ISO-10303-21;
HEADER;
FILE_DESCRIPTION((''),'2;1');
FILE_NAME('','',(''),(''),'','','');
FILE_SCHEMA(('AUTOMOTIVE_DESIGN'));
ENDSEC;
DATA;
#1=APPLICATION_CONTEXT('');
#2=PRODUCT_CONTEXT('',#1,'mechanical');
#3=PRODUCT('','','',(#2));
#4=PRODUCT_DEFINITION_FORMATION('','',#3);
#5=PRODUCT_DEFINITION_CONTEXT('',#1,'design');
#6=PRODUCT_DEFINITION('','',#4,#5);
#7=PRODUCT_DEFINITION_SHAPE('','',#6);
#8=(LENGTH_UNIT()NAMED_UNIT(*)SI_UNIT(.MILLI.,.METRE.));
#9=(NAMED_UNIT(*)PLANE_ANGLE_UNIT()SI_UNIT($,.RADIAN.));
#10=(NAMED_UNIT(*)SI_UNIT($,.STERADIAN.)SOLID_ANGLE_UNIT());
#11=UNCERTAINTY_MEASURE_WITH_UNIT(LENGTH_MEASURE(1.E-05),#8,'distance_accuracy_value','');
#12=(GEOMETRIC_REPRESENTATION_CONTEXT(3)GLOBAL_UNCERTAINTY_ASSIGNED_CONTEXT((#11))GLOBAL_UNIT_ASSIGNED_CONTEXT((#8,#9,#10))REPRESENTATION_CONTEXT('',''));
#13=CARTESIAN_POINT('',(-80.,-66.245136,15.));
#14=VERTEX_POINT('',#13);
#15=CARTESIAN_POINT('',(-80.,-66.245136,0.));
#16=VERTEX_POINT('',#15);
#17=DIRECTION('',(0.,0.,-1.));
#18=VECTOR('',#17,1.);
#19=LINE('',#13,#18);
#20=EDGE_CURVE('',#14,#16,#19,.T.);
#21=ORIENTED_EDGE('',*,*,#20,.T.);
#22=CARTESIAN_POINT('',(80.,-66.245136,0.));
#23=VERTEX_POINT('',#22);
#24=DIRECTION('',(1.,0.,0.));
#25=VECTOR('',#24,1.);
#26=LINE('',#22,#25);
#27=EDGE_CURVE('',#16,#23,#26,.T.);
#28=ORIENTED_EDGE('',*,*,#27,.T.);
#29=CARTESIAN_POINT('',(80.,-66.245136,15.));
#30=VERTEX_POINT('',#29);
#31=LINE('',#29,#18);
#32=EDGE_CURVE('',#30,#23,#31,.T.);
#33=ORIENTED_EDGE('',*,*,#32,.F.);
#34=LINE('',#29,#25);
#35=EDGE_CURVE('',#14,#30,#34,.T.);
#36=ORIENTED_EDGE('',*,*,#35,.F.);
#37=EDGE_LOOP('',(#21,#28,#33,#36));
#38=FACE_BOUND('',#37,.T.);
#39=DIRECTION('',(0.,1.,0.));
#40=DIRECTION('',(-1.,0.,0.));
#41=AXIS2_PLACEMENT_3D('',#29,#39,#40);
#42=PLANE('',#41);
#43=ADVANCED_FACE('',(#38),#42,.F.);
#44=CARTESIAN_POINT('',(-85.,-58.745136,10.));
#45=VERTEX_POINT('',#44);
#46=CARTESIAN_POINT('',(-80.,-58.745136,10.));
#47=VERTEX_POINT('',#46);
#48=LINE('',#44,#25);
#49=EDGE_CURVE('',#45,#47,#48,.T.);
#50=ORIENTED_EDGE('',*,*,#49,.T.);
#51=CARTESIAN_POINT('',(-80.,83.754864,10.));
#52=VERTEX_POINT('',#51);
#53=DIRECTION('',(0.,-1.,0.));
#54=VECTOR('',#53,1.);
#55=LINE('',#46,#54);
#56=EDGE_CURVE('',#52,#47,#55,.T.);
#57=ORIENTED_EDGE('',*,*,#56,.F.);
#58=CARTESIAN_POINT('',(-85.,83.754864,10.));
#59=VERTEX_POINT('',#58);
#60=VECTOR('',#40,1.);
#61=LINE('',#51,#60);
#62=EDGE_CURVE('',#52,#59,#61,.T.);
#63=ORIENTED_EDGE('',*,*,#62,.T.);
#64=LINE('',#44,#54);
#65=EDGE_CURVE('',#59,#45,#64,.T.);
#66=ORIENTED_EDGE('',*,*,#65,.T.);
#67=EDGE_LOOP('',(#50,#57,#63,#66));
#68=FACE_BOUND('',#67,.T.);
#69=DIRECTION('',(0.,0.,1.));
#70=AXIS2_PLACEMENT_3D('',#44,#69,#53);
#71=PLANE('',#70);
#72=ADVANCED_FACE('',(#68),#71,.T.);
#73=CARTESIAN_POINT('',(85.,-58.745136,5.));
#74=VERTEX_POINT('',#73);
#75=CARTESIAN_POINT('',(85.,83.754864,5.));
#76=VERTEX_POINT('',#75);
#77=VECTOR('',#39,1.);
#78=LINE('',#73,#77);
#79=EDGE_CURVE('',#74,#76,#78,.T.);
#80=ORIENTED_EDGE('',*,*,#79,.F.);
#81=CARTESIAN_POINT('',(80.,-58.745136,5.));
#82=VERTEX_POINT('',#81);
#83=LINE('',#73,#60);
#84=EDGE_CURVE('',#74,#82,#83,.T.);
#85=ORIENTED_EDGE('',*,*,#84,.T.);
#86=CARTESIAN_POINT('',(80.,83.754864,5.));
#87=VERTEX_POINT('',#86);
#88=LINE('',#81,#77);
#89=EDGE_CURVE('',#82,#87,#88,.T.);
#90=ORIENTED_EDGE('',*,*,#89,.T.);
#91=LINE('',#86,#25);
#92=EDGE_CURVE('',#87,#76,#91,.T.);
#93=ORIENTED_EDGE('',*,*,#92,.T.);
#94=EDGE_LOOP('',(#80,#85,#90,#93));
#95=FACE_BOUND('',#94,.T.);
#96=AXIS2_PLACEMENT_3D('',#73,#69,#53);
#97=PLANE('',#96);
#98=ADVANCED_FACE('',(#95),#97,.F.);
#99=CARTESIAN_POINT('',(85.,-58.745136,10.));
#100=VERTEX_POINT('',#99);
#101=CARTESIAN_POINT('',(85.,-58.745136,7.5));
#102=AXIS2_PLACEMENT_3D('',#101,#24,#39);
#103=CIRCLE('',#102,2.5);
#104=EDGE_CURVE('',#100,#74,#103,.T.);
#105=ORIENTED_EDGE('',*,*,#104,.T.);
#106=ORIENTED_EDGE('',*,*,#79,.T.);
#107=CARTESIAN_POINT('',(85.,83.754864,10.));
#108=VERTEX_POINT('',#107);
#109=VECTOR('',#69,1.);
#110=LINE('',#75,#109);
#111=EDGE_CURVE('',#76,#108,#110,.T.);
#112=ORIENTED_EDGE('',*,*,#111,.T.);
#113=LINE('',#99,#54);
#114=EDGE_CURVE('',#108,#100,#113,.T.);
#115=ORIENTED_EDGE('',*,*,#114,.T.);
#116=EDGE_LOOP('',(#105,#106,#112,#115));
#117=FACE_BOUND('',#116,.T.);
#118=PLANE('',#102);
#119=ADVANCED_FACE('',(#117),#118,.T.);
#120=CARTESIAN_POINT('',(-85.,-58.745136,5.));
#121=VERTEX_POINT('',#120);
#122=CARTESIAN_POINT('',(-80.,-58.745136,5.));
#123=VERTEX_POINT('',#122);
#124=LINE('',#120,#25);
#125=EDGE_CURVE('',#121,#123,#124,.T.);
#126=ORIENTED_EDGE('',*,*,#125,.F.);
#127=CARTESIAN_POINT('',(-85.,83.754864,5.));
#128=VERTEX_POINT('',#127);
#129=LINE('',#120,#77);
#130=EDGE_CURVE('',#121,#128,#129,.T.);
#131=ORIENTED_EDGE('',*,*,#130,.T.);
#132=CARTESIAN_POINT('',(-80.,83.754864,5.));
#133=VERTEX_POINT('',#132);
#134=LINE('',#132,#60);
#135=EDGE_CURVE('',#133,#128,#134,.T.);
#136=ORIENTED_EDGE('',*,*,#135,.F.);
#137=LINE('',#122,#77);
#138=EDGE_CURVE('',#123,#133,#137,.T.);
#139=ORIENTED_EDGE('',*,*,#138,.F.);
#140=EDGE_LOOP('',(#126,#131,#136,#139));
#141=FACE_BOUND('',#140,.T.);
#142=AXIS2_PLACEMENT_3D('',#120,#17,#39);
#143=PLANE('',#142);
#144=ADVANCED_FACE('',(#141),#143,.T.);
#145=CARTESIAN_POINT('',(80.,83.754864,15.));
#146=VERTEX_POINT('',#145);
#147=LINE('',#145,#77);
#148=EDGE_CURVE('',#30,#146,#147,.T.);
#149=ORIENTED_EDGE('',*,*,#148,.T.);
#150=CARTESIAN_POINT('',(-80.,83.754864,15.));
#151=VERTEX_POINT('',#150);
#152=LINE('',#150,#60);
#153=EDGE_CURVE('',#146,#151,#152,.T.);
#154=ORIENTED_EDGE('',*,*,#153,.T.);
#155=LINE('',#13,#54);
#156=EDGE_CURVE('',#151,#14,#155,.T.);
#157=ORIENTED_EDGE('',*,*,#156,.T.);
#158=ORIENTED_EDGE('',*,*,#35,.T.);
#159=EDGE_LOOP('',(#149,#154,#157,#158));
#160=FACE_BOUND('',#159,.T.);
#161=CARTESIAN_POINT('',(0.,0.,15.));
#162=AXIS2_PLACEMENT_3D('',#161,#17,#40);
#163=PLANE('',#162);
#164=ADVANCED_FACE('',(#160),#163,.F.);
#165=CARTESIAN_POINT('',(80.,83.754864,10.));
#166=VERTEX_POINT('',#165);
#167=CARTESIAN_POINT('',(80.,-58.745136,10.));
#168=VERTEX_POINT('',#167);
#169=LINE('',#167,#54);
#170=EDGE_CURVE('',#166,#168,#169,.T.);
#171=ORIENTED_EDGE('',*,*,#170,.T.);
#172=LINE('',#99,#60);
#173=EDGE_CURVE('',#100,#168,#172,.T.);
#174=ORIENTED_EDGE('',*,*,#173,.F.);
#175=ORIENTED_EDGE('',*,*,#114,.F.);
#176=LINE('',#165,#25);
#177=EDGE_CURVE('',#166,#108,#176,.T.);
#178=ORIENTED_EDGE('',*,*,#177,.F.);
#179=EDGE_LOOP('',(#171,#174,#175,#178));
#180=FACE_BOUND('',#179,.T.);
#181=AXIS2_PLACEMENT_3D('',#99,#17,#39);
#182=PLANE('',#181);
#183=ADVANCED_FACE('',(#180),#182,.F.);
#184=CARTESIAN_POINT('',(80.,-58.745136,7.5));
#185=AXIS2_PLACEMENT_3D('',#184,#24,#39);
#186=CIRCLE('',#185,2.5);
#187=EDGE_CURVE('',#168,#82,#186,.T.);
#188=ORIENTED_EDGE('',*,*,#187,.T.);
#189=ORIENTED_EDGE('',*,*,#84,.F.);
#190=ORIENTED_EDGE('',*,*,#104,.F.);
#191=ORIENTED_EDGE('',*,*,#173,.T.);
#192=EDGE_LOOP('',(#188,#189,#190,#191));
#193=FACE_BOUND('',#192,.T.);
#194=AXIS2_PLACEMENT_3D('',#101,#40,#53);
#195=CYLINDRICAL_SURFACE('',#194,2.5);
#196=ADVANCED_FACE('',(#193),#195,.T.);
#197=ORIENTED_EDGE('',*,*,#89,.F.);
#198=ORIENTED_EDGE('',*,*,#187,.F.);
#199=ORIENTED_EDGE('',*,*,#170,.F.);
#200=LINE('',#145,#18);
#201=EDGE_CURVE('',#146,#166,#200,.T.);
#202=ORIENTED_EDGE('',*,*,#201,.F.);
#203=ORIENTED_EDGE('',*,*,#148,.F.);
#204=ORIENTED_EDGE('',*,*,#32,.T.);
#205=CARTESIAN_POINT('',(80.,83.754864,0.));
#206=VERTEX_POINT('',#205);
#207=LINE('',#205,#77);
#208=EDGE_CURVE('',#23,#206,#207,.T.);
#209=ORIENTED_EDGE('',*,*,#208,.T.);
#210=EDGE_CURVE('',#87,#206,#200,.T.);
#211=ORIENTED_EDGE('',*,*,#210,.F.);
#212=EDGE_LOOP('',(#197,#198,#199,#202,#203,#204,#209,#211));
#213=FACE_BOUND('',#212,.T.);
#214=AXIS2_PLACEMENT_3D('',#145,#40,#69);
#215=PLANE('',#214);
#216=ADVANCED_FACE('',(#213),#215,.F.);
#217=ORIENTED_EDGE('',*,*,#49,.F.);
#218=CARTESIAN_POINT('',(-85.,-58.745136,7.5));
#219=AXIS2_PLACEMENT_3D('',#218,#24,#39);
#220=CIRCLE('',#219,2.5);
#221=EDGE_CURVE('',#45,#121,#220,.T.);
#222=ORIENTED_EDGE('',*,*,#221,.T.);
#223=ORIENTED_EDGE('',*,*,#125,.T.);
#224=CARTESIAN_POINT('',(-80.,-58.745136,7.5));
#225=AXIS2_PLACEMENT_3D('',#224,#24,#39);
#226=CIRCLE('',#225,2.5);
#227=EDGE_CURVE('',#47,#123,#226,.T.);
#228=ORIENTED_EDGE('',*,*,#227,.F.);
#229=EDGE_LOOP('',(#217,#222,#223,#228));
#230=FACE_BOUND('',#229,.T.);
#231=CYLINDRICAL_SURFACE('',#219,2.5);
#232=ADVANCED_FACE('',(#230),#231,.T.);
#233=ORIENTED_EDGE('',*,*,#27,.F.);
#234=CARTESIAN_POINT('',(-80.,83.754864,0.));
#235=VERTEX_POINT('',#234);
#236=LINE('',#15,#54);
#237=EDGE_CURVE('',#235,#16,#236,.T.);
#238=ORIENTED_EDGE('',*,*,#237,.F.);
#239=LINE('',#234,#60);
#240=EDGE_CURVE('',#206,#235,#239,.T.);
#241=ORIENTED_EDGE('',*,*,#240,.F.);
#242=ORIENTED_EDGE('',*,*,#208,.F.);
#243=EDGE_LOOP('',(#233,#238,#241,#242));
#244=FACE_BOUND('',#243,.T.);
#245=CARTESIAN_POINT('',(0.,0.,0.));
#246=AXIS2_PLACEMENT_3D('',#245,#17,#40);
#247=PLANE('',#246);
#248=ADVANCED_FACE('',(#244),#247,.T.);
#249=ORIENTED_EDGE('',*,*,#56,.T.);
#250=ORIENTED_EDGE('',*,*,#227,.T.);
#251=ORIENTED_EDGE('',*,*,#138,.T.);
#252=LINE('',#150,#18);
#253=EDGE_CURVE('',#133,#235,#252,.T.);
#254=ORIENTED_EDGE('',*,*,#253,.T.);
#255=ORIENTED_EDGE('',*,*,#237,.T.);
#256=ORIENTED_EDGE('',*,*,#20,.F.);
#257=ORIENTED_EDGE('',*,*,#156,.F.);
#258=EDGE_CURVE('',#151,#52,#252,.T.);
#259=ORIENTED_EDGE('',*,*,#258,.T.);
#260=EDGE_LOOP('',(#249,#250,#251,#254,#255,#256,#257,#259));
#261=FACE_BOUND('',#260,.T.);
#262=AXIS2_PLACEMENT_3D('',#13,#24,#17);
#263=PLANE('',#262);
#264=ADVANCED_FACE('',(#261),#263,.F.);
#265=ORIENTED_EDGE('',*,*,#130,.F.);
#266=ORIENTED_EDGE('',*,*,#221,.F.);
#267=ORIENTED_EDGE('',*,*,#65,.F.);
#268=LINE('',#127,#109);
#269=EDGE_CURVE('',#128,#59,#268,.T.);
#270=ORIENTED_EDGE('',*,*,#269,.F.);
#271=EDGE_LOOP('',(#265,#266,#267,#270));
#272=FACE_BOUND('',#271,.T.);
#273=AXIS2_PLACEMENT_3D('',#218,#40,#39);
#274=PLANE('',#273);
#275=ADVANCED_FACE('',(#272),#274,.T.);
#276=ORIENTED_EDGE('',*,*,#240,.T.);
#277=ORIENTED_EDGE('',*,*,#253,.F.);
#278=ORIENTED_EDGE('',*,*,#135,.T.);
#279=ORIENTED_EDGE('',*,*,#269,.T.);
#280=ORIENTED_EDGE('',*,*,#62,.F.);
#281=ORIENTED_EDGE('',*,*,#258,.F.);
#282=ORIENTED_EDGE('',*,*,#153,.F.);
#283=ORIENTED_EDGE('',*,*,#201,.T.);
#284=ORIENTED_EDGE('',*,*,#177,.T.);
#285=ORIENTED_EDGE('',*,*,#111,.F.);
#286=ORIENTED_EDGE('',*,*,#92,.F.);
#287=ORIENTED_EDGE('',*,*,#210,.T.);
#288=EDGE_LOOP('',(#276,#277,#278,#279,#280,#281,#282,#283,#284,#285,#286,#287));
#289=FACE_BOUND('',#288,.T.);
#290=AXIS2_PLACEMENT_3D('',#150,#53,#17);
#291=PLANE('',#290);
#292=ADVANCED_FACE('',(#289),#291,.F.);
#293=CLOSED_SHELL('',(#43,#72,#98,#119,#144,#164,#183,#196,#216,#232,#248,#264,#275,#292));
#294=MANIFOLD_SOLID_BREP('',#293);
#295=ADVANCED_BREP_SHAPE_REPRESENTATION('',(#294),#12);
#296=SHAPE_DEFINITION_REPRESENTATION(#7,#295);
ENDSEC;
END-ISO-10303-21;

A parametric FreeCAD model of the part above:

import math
import FreeCAD as App
import Part
import Sketcher

doc = App.newDocument("Part")
body = doc.addObject("PartDesign::Body", "Body")

# Sketch on XY plane
sketch1 = body.newObject("Sketcher::SketchObject", "Sketch")
sketch1.AttachmentSupport = (doc.getObject("XY_Plane"), [""])
sketch1.MapMode = "FlatFace"
sketch1.addGeometry(Part.LineSegment(App.Vector(-80, 84, 0), App.Vector(-80, -66, 0)), False)
sketch1.addGeometry(Part.LineSegment(App.Vector(-80, -66, 0), App.Vector(80, -66, 0)), False)
sketch1.addGeometry(Part.LineSegment(App.Vector(80, -66, 0), App.Vector(80, 84, 0)), False)
sketch1.addGeometry(Part.LineSegment(App.Vector(80, 84, 0), App.Vector(-80, 84, 0)), False)
sketch1.addConstraint(Sketcher.Constraint("Coincident", 0, 2, 1, 1))
sketch1.addConstraint(Sketcher.Constraint("Coincident", 1, 2, 2, 1))
sketch1.addConstraint(Sketcher.Constraint("Coincident", 2, 2, 3, 1))
sketch1.addConstraint(Sketcher.Constraint("Coincident", 3, 2, 0, 1))
sketch1.addConstraint(Sketcher.Constraint("Vertical", 0))
sketch1.addConstraint(Sketcher.Constraint("Horizontal", 1))
sketch1.addConstraint(Sketcher.Constraint("Vertical", 2))
sketch1.addConstraint(Sketcher.Constraint("Horizontal", 3))
sketch1.addConstraint(Sketcher.Constraint("DistanceX", 1, 1, 1, 2, 160.0))
sketch1.addConstraint(Sketcher.Constraint("DistanceY", 0, 2, 0, 1, 150.0))
sketch1.addConstraint(Sketcher.Constraint("DistanceX", 0, 2, -1, 1, 80.0))
sketch1.addConstraint(Sketcher.Constraint("DistanceY", 0, 2, -1, 1, 66.245136))
pad1 = body.newObject("PartDesign::Pad", "Pad")
pad1.Profile = sketch1
pad1.Length = 15

# Sketch on YZ plane
sketch2 = body.newObject("Sketcher::SketchObject", "Sketch001")
sketch2.AttachmentSupport = (doc.getObject("YZ_Plane"), [""])
sketch2.MapMode = "FlatFace"
sketch2.AttachmentOffset = App.Placement(App.Vector(0, 0, 80), App.Rotation())
sketch2.addGeometry(Part.LineSegment(App.Vector(89.5, 10, 0), App.Vector(-58.7, 10, 0)), False)
sketch2.addGeometry(Part.ArcOfCircle(Part.Circle(App.Vector(-58.7, 7.5, 0), App.Vector(0, 0, 1), 2.5), math.radians(90), math.radians(270)), False)
sketch2.addGeometry(Part.LineSegment(App.Vector(-58.7, 5, 0), App.Vector(89.5, 5, 0)), False)
sketch2.addGeometry(Part.ArcOfCircle(Part.Circle(App.Vector(89.5, 7.5, 0), App.Vector(0, 0, 1), 2.5), math.radians(-90), math.radians(90)), False)
sketch2.addConstraint(Sketcher.Constraint("Tangent", 0, 2, 1, 1))
sketch2.addConstraint(Sketcher.Constraint("Tangent", 1, 2, 2, 1))
sketch2.addConstraint(Sketcher.Constraint("Tangent", 2, 2, 3, 1))
sketch2.addConstraint(Sketcher.Constraint("Tangent", 3, 2, 0, 1))
sketch2.addConstraint(Sketcher.Constraint("Horizontal", 0))
sketch2.addConstraint(Sketcher.Constraint("Horizontal", 2))
sketch2.addConstraint(Sketcher.Constraint("Radius", 1, 2.5))
sketch2.addConstraint(Sketcher.Constraint("DistanceY", -1, 1, 0, 2, 10.0))
sketch2.addConstraint(Sketcher.Constraint("DistanceX", 0, 2, 0, 1, 148.265365))
sketch2.addConstraint(Sketcher.Constraint("DistanceX", -1, 1, 3, 3, 89.520228))
pad2 = body.newObject("PartDesign::Pad", "Pad001")
pad2.Profile = sketch2
pad2.Length = 5
doc.recompute()

mirrored = body.newObject("PartDesign::Mirrored", "Mirrored")
mirrored.Originals = [pad2]
mirrored.MirrorPlane = (doc.getObject("YZ_Plane"), [""])
body.Tip = mirrored

# Sketch on YZ plane
sketch3 = body.newObject("Sketcher::SketchObject", "Sketch002")
sketch3.AttachmentSupport = (doc.getObject("YZ_Plane"), [""])
sketch3.MapMode = "FlatFace"
sketch3.AttachmentOffset = App.Placement(App.Vector(0, 0, -85), App.Rotation())
sketch3.addGeometry(Part.LineSegment(App.Vector(83.8, 5, 0), App.Vector(83.8, 10, 0)), False)
sketch3.addGeometry(Part.LineSegment(App.Vector(83.8, 10, 0), App.Vector(89.5, 10, 0)), False)
sketch3.addGeometry(Part.ArcOfCircle(Part.Circle(App.Vector(89.5, 7.5, 0), App.Vector(0, 0, 1), 2.5), math.radians(-90), math.radians(90)), False)
sketch3.addGeometry(Part.LineSegment(App.Vector(89.5, 5, 0), App.Vector(83.8, 5, 0)), False)
sketch3.addConstraint(Sketcher.Constraint("Coincident", 0, 2, 1, 1))
sketch3.addConstraint(Sketcher.Constraint("Tangent", 1, 2, 2, 2))
sketch3.addConstraint(Sketcher.Constraint("Tangent", 2, 1, 3, 1))
sketch3.addConstraint(Sketcher.Constraint("Coincident", 3, 2, 0, 1))
sketch3.addConstraint(Sketcher.Constraint("Vertical", 0))
sketch3.addConstraint(Sketcher.Constraint("Horizontal", 1))
sketch3.addConstraint(Sketcher.Constraint("Horizontal", 3))
sketch3.addConstraint(Sketcher.Constraint("Radius", 2, 2.5))
sketch3.addConstraint(Sketcher.Constraint("DistanceY", -1, 1, 0, 2, 10.0))
sketch3.addConstraint(Sketcher.Constraint("DistanceX", 1, 1, 1, 2, 5.765365))
sketch3.addConstraint(Sketcher.Constraint("DistanceX", -1, 1, 2, 3, 89.520228))
pocket1 = body.newObject("PartDesign::Pocket", "Pocket")
pocket1.Profile = sketch3
pocket1.Length = 5
pocket1.Reversed = True
doc.recompute()

mirrored2 = body.newObject("PartDesign::Mirrored", "Mirrored001")
mirrored2.Originals = [pocket1]
mirrored2.MirrorPlane = (doc.getObject("YZ_Plane"), [""])
body.Tip = mirrored2

doc.recompute()
